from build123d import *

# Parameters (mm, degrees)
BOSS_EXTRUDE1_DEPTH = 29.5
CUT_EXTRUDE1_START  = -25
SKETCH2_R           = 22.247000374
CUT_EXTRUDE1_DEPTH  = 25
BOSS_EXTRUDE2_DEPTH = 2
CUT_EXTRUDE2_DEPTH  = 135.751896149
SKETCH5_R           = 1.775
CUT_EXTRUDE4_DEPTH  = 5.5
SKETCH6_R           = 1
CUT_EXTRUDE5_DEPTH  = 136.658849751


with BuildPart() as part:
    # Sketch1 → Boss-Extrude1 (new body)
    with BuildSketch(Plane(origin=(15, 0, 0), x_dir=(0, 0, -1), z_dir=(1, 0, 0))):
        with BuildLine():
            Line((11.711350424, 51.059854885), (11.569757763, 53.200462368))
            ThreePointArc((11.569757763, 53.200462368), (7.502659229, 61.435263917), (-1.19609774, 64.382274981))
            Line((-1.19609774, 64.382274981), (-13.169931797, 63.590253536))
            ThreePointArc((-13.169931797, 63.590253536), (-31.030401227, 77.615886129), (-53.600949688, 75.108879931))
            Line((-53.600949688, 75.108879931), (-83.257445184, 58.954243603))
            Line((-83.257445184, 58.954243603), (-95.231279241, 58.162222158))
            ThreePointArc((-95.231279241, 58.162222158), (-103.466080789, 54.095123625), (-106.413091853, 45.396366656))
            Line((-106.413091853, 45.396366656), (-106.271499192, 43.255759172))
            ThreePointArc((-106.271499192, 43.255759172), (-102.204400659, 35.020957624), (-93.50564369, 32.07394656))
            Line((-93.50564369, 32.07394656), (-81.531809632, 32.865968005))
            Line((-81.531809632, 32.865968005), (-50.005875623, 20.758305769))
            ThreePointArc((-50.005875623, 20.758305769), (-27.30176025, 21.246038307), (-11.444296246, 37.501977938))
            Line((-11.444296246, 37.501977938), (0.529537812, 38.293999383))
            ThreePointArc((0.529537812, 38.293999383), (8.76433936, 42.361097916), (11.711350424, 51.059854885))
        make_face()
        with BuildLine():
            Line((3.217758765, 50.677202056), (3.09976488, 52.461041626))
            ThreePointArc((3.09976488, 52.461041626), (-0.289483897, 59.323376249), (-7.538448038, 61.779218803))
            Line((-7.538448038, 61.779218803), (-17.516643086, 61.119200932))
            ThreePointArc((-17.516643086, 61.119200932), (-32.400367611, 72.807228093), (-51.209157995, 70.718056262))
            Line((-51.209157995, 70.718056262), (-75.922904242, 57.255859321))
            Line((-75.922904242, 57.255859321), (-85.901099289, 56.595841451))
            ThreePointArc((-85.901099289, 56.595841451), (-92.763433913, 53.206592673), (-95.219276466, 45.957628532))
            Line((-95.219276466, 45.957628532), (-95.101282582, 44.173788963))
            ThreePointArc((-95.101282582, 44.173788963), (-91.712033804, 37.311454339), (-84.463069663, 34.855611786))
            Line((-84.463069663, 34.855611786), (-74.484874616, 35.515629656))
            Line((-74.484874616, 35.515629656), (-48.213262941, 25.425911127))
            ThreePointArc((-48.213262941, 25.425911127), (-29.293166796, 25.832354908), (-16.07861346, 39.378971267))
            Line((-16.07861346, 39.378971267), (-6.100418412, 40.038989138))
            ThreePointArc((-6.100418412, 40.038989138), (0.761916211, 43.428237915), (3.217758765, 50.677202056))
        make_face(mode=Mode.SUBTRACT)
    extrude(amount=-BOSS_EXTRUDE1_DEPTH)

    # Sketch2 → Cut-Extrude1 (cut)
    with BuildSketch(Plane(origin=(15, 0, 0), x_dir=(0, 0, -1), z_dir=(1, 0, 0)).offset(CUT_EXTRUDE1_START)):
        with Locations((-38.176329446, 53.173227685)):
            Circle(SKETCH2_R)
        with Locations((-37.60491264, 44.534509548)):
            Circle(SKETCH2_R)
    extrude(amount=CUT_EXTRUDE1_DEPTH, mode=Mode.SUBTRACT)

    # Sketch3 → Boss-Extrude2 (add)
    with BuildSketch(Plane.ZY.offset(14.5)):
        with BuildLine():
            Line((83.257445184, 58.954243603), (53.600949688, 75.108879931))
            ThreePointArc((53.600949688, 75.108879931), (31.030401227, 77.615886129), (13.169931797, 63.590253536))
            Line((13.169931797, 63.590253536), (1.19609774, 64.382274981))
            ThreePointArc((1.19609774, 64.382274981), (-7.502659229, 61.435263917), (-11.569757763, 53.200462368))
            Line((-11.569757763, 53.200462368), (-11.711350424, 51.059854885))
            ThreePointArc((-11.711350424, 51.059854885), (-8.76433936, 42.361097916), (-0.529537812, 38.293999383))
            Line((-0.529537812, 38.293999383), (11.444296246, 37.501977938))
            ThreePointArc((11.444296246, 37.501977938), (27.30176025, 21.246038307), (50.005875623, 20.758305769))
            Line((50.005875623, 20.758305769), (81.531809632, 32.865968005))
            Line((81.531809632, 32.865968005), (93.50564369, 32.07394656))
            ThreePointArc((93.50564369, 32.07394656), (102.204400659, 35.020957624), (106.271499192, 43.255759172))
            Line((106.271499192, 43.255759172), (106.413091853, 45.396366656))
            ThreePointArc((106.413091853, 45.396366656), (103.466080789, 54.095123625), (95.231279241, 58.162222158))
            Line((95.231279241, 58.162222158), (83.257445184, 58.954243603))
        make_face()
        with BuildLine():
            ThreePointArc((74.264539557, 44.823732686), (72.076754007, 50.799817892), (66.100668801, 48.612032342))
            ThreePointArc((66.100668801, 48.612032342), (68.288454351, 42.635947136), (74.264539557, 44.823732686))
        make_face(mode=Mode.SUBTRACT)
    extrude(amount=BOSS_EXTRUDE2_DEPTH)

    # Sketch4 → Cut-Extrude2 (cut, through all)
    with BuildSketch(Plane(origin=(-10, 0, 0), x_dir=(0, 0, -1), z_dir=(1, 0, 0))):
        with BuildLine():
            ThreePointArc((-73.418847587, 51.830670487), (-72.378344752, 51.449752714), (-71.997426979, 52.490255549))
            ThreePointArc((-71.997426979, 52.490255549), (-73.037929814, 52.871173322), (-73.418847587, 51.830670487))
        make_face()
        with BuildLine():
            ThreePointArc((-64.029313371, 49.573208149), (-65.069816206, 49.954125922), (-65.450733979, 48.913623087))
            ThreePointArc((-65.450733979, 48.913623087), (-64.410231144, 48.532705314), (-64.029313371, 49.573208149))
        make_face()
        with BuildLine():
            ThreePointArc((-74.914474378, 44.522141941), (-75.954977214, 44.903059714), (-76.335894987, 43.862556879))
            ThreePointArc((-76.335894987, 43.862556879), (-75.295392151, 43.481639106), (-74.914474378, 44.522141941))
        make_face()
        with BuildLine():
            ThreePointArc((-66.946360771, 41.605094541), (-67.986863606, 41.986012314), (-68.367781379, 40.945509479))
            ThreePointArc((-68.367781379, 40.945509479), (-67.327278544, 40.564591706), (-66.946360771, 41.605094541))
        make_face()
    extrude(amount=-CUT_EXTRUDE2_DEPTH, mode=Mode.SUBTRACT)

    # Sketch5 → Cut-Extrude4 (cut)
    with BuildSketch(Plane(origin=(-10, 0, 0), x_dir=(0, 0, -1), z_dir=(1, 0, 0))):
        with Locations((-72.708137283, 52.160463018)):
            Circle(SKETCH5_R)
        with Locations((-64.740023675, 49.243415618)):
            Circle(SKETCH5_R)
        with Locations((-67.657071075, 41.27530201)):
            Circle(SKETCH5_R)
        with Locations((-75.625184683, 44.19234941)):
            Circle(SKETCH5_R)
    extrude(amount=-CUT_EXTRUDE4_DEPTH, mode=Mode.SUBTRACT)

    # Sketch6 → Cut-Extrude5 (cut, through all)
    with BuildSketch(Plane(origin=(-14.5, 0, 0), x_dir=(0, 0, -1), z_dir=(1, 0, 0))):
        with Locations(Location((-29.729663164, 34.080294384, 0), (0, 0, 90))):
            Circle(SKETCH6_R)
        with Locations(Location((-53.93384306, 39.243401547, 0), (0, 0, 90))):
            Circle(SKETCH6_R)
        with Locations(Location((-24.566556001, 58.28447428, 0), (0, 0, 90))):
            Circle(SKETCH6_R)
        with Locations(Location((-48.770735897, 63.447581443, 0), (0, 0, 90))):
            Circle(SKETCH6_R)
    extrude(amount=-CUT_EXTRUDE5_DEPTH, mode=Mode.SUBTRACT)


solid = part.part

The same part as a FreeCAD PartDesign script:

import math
import FreeCAD as App
import Part
import Sketcher
from FreeCAD import Vector
Q = App.Units.Quantity

doc = App.newDocument("Part")
params = doc.addObject("Spreadsheet::Sheet", "Params")
for row, (alias, value) in enumerate([
    ("sketch1_radius", "12 mm"),
    ("sketch1_radius2", "30 mm"),
    ("sketch1_radius3", "10 mm"),
    ("sketch1_radius4", "25 mm"),
    ("sketch1_length", "12 mm"),
    ("pad1_length", "29.5 mm"),
    ("pocket1_length", "25 mm"),
    ("sketch3_diameter", "9 mm"),
    ("sketch3_radius", "30 mm"),
    ("sketch3_radius2", "12 mm"),
    ("sketch3_length", "12 mm"),
    ("pad2_length", "2 mm"),
    ("sketch5_diameter", "3.55 mm"),
    ("pocket3_length", "5.5 mm"),
    ("sketch6_diameter", "2 mm"),
], start=1):
    params.set(f"A{row}", alias)
    params.set(f"B{row}", "=" + value)
    params.setAlias(f"B{row}", alias)

body = doc.addObject("PartDesign::Body", "Body")

# Sketch on YZ plane
sketch1 = body.newObject("Sketcher::SketchObject", "Sketch")
sketch1.AttachmentSupport = (doc.getObject("YZ_Plane"), [""])
sketch1.MapMode = "FlatFace"
sketch1.AttachmentOffset = App.Placement(Vector(0, 0, 15), App.Rotation())
sketch1.addGeometry([
    Part.LineSegment(Vector(51.059855, -11.71135, 0), Vector(53.200462, -11.569758, 0)),  # 0
    Part.ArcOfCircle(Part.Circle(Vector(52.408441, 0.404076, 0), Vector(0, 0, 1), 12), math.radians(-86.215625), math.radians(3.784375)),  # 1
    Part.LineSegment(Vector(64.382275, 1.196098, 0), Vector(63.590254, 13.169932, 0)),  # 2
    Part.ArcOfCircle(Part.Circle(Vector(48.763938, 39.2502, 0), Vector(0, 0, 1), 30), math.radians(-60.382295), math.radians(28.578237)),  # 3
    Part.LineSegment(Vector(75.10888, 53.60095, 0), Vector(58.954244, 83.257445, 0)),  # 4
    Part.LineSegment(Vector(58.954244, 83.257445, 0), Vector(58.162222, 95.231279, 0)),  # 5
    Part.ArcOfCircle(Part.Circle(Vector(46.188388, 94.439258, 0), Vector(0, 0, 1), 12), math.radians(3.784375), math.radians(93.784375)),  # 6
    Part.LineSegment(Vector(45.396367, 106.413092, 0), Vector(43.255759, 106.271499, 0)),  # 7
    Part.ArcOfCircle(Part.Circle(Vector(44.047781, 94.297665, 0), Vector(0, 0, 1), 12), math.radians(93.784375), math.radians(183.784375)),  # 8
    Part.LineSegment(Vector(32.073947, 93.505644, 0), Vector(32.865968, 81.53181, 0)),  # 9
    Part.LineSegment(Vector(32.865968, 81.53181, 0), Vector(20.758306, 50.005876, 0)),  # 10
    Part.ArcOfCircle(Part.Circle(Vector(48.763938, 39.2502, 0), Vector(0, 0, 1), 30), math.radians(158.990512), math.radians(247.951045)),  # 11
    Part.LineSegment(Vector(37.501978, 11.444296, 0), Vector(38.293999, -0.529538, 0)),  # 12
    Part.ArcOfCircle(Part.Circle(Vector(50.267833, 0.262484, 0), Vector(0, 0, 1), 12), math.radians(-176.215625), math.radians(-86.215625)),  # 13
    Part.LineSegment(Vector(52.461042, -3.099765, 0), Vector(50.677202, -3.217759, 0)),  # 14
    Part.ArcOfCircle(Part.Circle(Vector(50.017184, 6.760436, 0), Vector(0, 0, 1), 10), math.radians(-176.215625), math.radians(-86.215625)),  # 15
    Part.LineSegment(Vector(40.038989, 6.100418, 0), Vector(39.378971, 16.078613, 0)),  # 16
    Part.ArcOfCircle(Part.Circle(Vector(48.763938, 39.2502, 0), Vector(0, 0, 1), 25), math.radians(158.990512), math.radians(247.951045)),  # 17
    Part.LineSegment(Vector(25.425911, 48.213263, 0), Vector(35.51563, 74.484875, 0)),  # 18
    Part.LineSegment(Vector(35.51563, 74.484875, 0), Vector(34.855612, 84.46307, 0)),  # 19
    Part.ArcOfCircle(Part.Circle(Vector(44.833807, 85.123088, 0), Vector(0, 0, 1), 10), math.radians(93.784375), math.radians(183.784375)),  # 20
    Part.LineSegment(Vector(44.173789, 95.101283, 0), Vector(45.957629, 95.219276, 0)),  # 21
    Part.ArcOfCircle(Part.Circle(Vector(46.617646, 85.241081, 0), Vector(0, 0, 1), 10), math.radians(3.784375), math.radians(93.784375)),  # 22
    Part.LineSegment(Vector(56.595841, 85.901099, 0), Vector(57.255859, 75.922904, 0)),  # 23
    Part.LineSegment(Vector(57.255859, 75.922904, 0), Vector(70.718056, 51.209158, 0)),  # 24
    Part.ArcOfCircle(Part.Circle(Vector(48.763938, 39.2502, 0), Vector(0, 0, 1), 25), math.radians(-60.382295), math.radians(28.578237)),  # 25
    Part.LineSegment(Vector(61.119201, 17.516643, 0), Vector(61.779219, 7.538448, 0)),  # 26
    Part.ArcOfCircle(Part.Circle(Vector(51.801024, 6.87843, 0), Vector(0, 0, 1), 10), math.radians(-86.215625), math.radians(3.784375)),  # 27
], False)
sketch1.addConstraint([
    Sketcher.Constraint("Tangent", 0, 2, 1, 1),
    Sketcher.Constraint("Tangent", 1, 2, 2, 1),
    Sketcher.Constraint("Coincident", 2, 2, 3, 1),
    Sketcher.Constraint("Tangent", 3, 2, 4, 1),
    Sketcher.Constraint("Coincident", 4, 2, 5, 1),
    Sketcher.Constraint("Tangent", 5, 2, 6, 1),
    Sketcher.Constraint("Tangent", 6, 2, 7, 1),
    Sketcher.Constraint("Tangent", 7, 2, 8, 1),
    Sketcher.Constraint("Tangent", 8, 2, 9, 1),
    Sketcher.Constraint("Coincident", 9, 2, 10, 1),
    Sketcher.Constraint("Tangent", 10, 2, 11, 1),
    Sketcher.Constraint("Coincident", 11, 2, 12, 1),
    Sketcher.Constraint("Tangent", 12, 2, 13, 1),
    Sketcher.Constraint("Tangent", 13, 2, 0, 1),
    Sketcher.Constraint("Tangent", 14, 2, 15, 2),
    Sketcher.Constraint("Tangent", 15, 1, 16, 1),
    Sketcher.Constraint("Coincident", 16, 2, 17, 2),
    Sketcher.Constraint("Tangent", 17, 1, 18, 1),
    Sketcher.Constraint("Coincident", 18, 2, 19, 1),
    Sketcher.Constraint("Tangent", 19, 2, 20, 2),
    Sketcher.Constraint("Tangent", 20, 1, 21, 1),
    Sketcher.Constraint("Tangent", 21, 2, 22, 2),
    Sketcher.Constraint("Tangent", 22, 1, 23, 1),
    Sketcher.Constraint("Coincident", 23, 2, 24, 1),
    Sketcher.Constraint("Tangent", 24, 2, 25, 2),
    Sketcher.Constraint("Coincident", 25, 1, 26, 1),
    Sketcher.Constraint("Tangent", 26, 2, 27, 2),
    Sketcher.Constraint("Tangent", 27, 1, 14, 1),
    Sketcher.Constraint("Coincident", 11, 3, 3, 3),
    Sketcher.Constraint("Coincident", 17, 3, 3, 3),
    Sketcher.Constraint("Coincident", 25, 3, 3, 3),
    Sketcher.Constraint("Equal", 1, 6),
    Sketcher.Constraint("Equal", 6, 8),
    Sketcher.Constraint("Equal", 3, 11),
    Sketcher.Constraint("Equal", 8, 13),
    Sketcher.Constraint("Equal", 15, 20),
    Sketcher.Constraint("Equal", 20, 22),
    Sketcher.Constraint("Equal", 17, 25),
    Sketcher.Constraint("Equal", 22, 27),
    Sketcher.Constraint("Perpendicular", 0, 2),
    Sketcher.Constraint("Parallel", 2, 5),
    Sketcher.Constraint("Perpendicular", 5, 7),
    Sketcher.Constraint("Perpendicular", 7, 9),
    Sketcher.Constraint("Parallel", 9, 12),
    Sketcher.Constraint("Perpendicular", 12, 14),
    Sketcher.Constraint("Perpendicular", 14, 16),
    Sketcher.Constraint("Parallel", 10, 18),
    Sketcher.Constraint("Parallel", 16, 19),
    Sketcher.Constraint("Perpendicular", 19, 21),
    Sketcher.Constraint("Perpendicular", 21, 23),
    Sketcher.Constraint("Parallel", 4, 24),
    Sketcher.Constraint("Parallel", 23, 26),
    Sketcher.Constraint("Equal", 2, 5),
    Sketcher.Constraint("Equal", 0, 7),
    Sketcher.Constraint("Equal", 5, 9),
    Sketcher.Constraint("Equal", 4, 10),
    Sketcher.Constraint("Equal", 9, 12),
    Sketcher.Constraint("Equal", 16, 19),
    Sketcher.Constraint("Equal", 14, 21),
    Sketcher.Constraint("Equal", 19, 23),
    Sketcher.Constraint("Equal", 23, 26),
    Sketcher.Constraint("Radius", 1, Q("12 mm")),
    Sketcher.Constraint("Radius", 3, Q("30 mm")),
    Sketcher.Constraint("Radius", 15, Q("10 mm")),
    Sketcher.Constraint("Radius", 17, Q("25 mm")),
    Sketcher.Constraint("Distance", 2, Q("12 mm")),
    Sketcher.Constraint("Distance", 16, Q("10 mm")),
    Sketcher.Constraint("DistanceX", -1, 1, 12, 2, Q("38.293999 mm")),
    Sketcher.Constraint("DistanceY", 0, 2, 14, 2, Q("8.351999 mm")),
    Sketcher.Constraint("DistanceY", -1, 1, 3, 3, Q("39.2502 mm")),
    Sketcher.Constraint("DistanceY", -1, 1, 7, 2, Q("106.271499 mm")),
    Sketcher.Constraint("DistanceY", -1, 1, 22, 1, Q("85.901099 mm")),
    Sketcher.Constraint("DistanceY", 27, 3, 2, 2, Q("6.291502 mm")),
])
sketch1.setExpression("Constraints[61]", "Params.sketch1_radius")
sketch1.setExpression("Constraints[62]", "Params.sketch1_radius2")
sketch1.setExpression("Constraints[63]", "Params.sketch1_radius3")
sketch1.setExpression("Constraints[64]", "Params.sketch1_radius4")
sketch1.setExpression("Constraints[65]", "Params.sketch1_length")
pad1 = body.newObject("PartDesign::Pad", "Pad")
pad1.Profile = sketch1
pad1.setExpression("Length", "Params.pad1_length")
pad1.Reversed = True

# Sketch on YZ plane
sketch2 = body.newObject("Sketcher::SketchObject", "Sketch001")
sketch2.AttachmentSupport = (doc.getObject("YZ_Plane"), [""])
sketch2.MapMode = "FlatFace"
sketch2.AttachmentOffset = App.Placement(Vector(0, 0, -10), App.Rotation())
sketch2.addGeometry([
    Part.ArcOfCircle(Part.Circle(Vector(53.173228, 38.176329, 0), Vector(0, 0, 1), 22.247), math.radians(-97.435753), math.radians(105.004503)),
    Part.ArcOfCircle(Part.Circle(Vector(44.53451, 37.604913, 0), Vector(0, 0, 1), 22.247), math.radians(82.564247), math.radians(285.004503)),
], False)
sketch2.addConstraint([
    Sketcher.Constraint("Coincident", 0, 1, 1, 2),
    Sketcher.Constraint("Coincident", 1, 1, 0, 2),
    Sketcher.Constraint("Equal", 0, 1),
    Sketcher.Constraint("Radius", 0, Q("22.247 mm")),
    Sketcher.Constraint("DistanceY", 0, 1, 1, 3, Q("21.4885 mm")),
    Sketcher.Constraint("DistanceY", -1, 1, 0, 3, Q("38.176329 mm")),
    Sketcher.Constraint("DistanceX", -1, 1, 1, 3, Q("44.53451 mm")),
    Sketcher.Constraint("DistanceX", -1, 1, 1, 1, Q("47.413591 mm")),
])
pocket1 = body.newObject("PartDesign::Pocket", "Pocket")
pocket1.Profile = sketch2
pocket1.setExpression("Length", "Params.pocket1_length")
pocket1.Reversed = True

# Sketch on YZ plane
sketch3 = body.newObject("Sketcher::SketchObject", "Sketch002")
sketch3.AttachmentSupport = (doc.getObject("YZ_Plane"), [""])
sketch3.MapMode = "FlatFace"
sketch3.AttachmentOffset = App.Placement(Vector(0, 0, -14.5), App.Rotation())
sketch3.addGeometry([
    Part.LineSegment(Vector(58.954244, 83.257445, 0), Vector(75.10888, 53.60095, 0)),  # 0
    Part.ArcOfCircle(Part.Circle(Vector(48.763938, 39.2502, 0), Vector(0, 0, 1), 30), math.radians(-60.382295), math.radians(28.578237)),  # 1
    Part.LineSegment(Vector(63.590254, 13.169932, 0), Vector(64.382275, 1.196098, 0)),  # 2
    Part.ArcOfCircle(Part.Circle(Vector(52.408441, 0.404076, 0), Vector(0, 0, 1), 12), math.radians(-86.215625), math.radians(3.784375)),  # 3
    Part.LineSegment(Vector(53.200462, -11.569758, 0), Vector(51.059855, -11.71135, 0)),  # 4
    Part.ArcOfCircle(Part.Circle(Vector(50.267833, 0.262484, 0), Vector(0, 0, 1), 12), math.radians(-176.215625), math.radians(-86.215625)),  # 5
    Part.LineSegment(Vector(38.293999, -0.529538, 0), Vector(37.501978, 11.444296, 0)),  # 6
    Part.ArcOfCircle(Part.Circle(Vector(48.763938, 39.2502, 0), Vector(0, 0, 1), 30), math.radians(158.990512), math.radians(247.951045)),  # 7
    Part.LineSegment(Vector(20.758306, 50.005876, 0), Vector(32.865968, 81.53181, 0)),  # 8
    Part.LineSegment(Vector(32.865968, 81.53181, 0), Vector(32.073947, 93.505644, 0)),  # 9
    Part.ArcOfCircle(Part.Circle(Vector(44.047781, 94.297665, 0), Vector(0, 0, 1), 12), math.radians(93.784375), math.radians(183.784375)),  # 10
    Part.LineSegment(Vector(43.255759, 106.271499, 0), Vector(45.396367, 106.413092, 0)),  # 11
    Part.ArcOfCircle(Part.Circle(Vector(46.188388, 94.439258, 0), Vector(0, 0, 1), 12), math.radians(3.784375), math.radians(93.784375)),  # 12
    Part.LineSegment(Vector(58.162222, 95.231279, 0), Vector(58.954244, 83.257445, 0)),  # 13
    Part.Circle(Vector(46.717883, 70.182604, 0), Vector(0, 0, 1), 4.5),  # 14
], False)
sketch3.addConstraint([
    Sketcher.Constraint("Tangent", 0, 2, 1, 2),
    Sketcher.Constraint("Coincident", 1, 1, 2, 1),
    Sketcher.Constraint("Tangent", 2, 2, 3, 2),
    Sketcher.Constraint("Tangent", 3, 1, 4, 1),
    Sketcher.Constraint("Tangent", 4, 2, 5, 2),
    Sketcher.Constraint("Tangent", 5, 1, 6, 1),
    Sketcher.Constraint("Coincident", 6, 2, 7, 2),
    Sketcher.Constraint("Tangent", 7, 1, 8, 1),
    Sketcher.Constraint("Coincident", 8, 2, 9, 1),
    Sketcher.Constraint("Tangent", 9, 2, 10, 2),
    Sketcher.Constraint("Tangent", 10, 1, 11, 1),
    Sketcher.Constraint("Tangent", 11, 2, 12, 2),
    Sketcher.Constraint("Tangent", 12, 1, 13, 1),
    Sketcher.Constraint("Coincident", 13, 2, 0, 1),
    Sketcher.Constraint("Coincident", 7, 3, 1, 3),
    Sketcher.Constraint("Equal", 3, 5),
    Sketcher.Constraint("Equal", 1, 7),
    Sketcher.Constraint("Equal", 5, 10),
    Sketcher.Constraint("Equal", 10, 12),
    Sketcher.Constraint("Perpendicular", 2, 4),
    Sketcher.Constraint("Perpendicular", 4, 6),
    Sketcher.Constraint("Parallel", 6, 9),
    Sketcher.Constraint("Perpendicular", 9, 11),
    Sketcher.Constraint("Perpendicular", 11, 13),
    Sketcher.Constraint("Equal", 2, 6),
    Sketcher.Constraint("Equal", 0, 8),
    Sketcher.Constraint("Equal", 6, 9),
    Sketcher.Constraint("Equal", 4, 11),
    Sketcher.Constraint("Equal", 9, 13),
    Sketcher.Constraint("Diameter", 14, Q("9 mm")),
    Sketcher.Constraint("Radius", 1, Q("30 mm")),
    Sketcher.Constraint("Radius", 3, Q("12 mm")),
    Sketcher.Constraint("Distance", 2, Q("12 mm")),
    Sketcher.Constraint("DistanceX", -1, 1, 5, 1, Q("38.293999 mm")),
    Sketcher.Constraint("DistanceY", -1, 1, 1, 3, Q("39.2502 mm")),
    Sketcher.Constraint("DistanceY", -1, 1, 10, 1, Q("106.271499 mm")),
    Sketcher.Constraint("DistanceX", 10, 3, 14, 3, Q("2.670102 mm")),
    Sketcher.Constraint("DistanceX", 10, 3, 0, 2, Q("31.061099 mm")),
    Sketcher.Constraint("DistanceX", 4, 2, 1, 1, Q("12.530399 mm")),
    Sketcher.Constraint("DistanceY", 14, 3, 10, 3, Q("24.115061 mm")),
])
sketch3.setExpression("Constraints[29]", "Params.sketch3_diameter")
sketch3.setExpression("Constraints[30]", "Params.sketch3_radius")
sketch3.setExpression("Constraints[31]", "Params.sketch3_radius2")
sketch3.setExpression("Constraints[32]", "Params.sketch3_length")
pad2 = body.newObject("PartDesign::Pad", "Pad001")
pad2.Profile = sketch3
pad2.setExpression("Length", "Params.pad2_length")
pad2.Reversed = True

# Sketch on YZ plane
sketch4 = body.newObject("Sketcher::SketchObject", "Sketch003")
sketch4.AttachmentSupport = (doc.getObject("YZ_Plane"), [""])
sketch4.MapMode = "FlatFace"
sketch4.AttachmentOffset = App.Placement(Vector(0, 0, -10), App.Rotation())
sketch4.addGeometry([
    Part.Circle(Vector(52.160463, 72.708137, 0), Vector(0, 0, 1), 0.7835),  # 0
    Part.Circle(Vector(49.243416, 64.740024, 0), Vector(0, 0, 1), 0.7835),  # 1
    Part.ArcOfCircle(Part.Circle(Vector(44.192349, 75.625185, 0), Vector(0, 0, 1), 0.7835), math.radians(-65.107177), math.radians(114.892822)),  # 2
    Part.ArcOfCircle(Part.Circle(Vector(44.192349, 75.625185, 0), Vector(0, 0, 1), 0.7835), math.radians(114.892823), math.radians(294.892822)),  # 3
    Part.Circle(Vector(41.275302, 67.657071, 0), Vector(0, 0, 1), 0.7835),  # 4
], False)
sketch4.addConstraint([
    Sketcher.Constraint("Tangent", 2, 1, 3, 2),
    Sketcher.Constraint("Coincident", 3, 1, 2, 2),
    Sketcher.Constraint("Equal", 0, 1),
    Sketcher.Constraint("Equal", 1, 2),
    Sketcher.Constraint("Equal", 3, 4),
    Sketcher.Constraint("Diameter", 0, Q("1.567 mm")),
    Sketcher.Constraint("DistanceX", -1, 1, 2, 3, Q("44.192349 mm")),
    Sketcher.Constraint("DistanceY", -1, 1, 4, 3, Q("67.657071 mm")),
    Sketcher.Constraint("DistanceX", -1, 1, 2, 1, Q("44.522142 mm")),
    Sketcher.Constraint("DistanceY", 1, 3, 2, 3, Q("10.885161 mm")),
    Sketcher.Constraint("DistanceX", 4, 3, 0, 3, Q("10.885161 mm")),
    Sketcher.Constraint("DistanceX", 4, 3, 2, 1, Q("3.24684 mm")),
    Sketcher.Constraint("DistanceY", 3, 3, 3, 1, Q("0.71071 mm")),
    Sketcher.Constraint("DistanceY", -1, 1, 0, 3, Q("72.708137 mm")),
    Sketcher.Constraint("DistanceX", -1, 1, 1, 3, Q("49.243416 mm")),
    Sketcher.Constraint("DistanceY", -1, 1, 1, 3, Q("64.740024 mm")),
])
pocket2 = body.newObject("PartDesign::Pocket", "Pocket001")
pocket2.Profile = sketch4
pocket2.Type = "ThroughAll"

# Sketch on YZ plane
sketch5 = body.newObject("Sketcher::SketchObject", "Sketch004")
sketch5.AttachmentSupport = (doc.getObject("YZ_Plane"), [""])
sketch5.MapMode = "FlatFace"
sketch5.AttachmentOffset = App.Placement(Vector(0, 0, -10), App.Rotation())
sketch5.addGeometry([
    Part.Circle(Vector(52.160463, 72.708137, 0), Vector(0, 0, 1), 1.775),
    Part.Circle(Vector(49.243416, 64.740024, 0), Vector(0, 0, 1), 1.775),
    Part.Circle(Vector(41.275302, 67.657071, 0), Vector(0, 0, 1), 1.775),
    Part.Circle(Vector(44.192349, 75.625185, 0), Vector(0, 0, 1), 1.775),
], False)
sketch5.addConstraint([
    Sketcher.Constraint("Equal", 0, 1),
    Sketcher.Constraint("Equal", 1, 2),
    Sketcher.Constraint("Equal", 2, 3),
    Sketcher.Constraint("Diameter", 0, Q("3.55 mm")),
    Sketcher.Constraint("DistanceY", -1, 1, 2, 3, Q("67.657071 mm")),
    Sketcher.Constraint("DistanceX", -1, 1, 3, 3, Q("44.192349 mm")),
    Sketcher.Constraint("DistanceX", 2, 3, 0, 3, Q("10.885161 mm")),
    Sketcher.Constraint("DistanceY", 1, 3, 3, 3, Q("10.885161 mm")),
    Sketcher.Constraint("DistanceX", -1, 1, 0, 3, Q("52.160463 mm")),
    Sketcher.Constraint("DistanceY", -1, 1, 0, 3, Q("72.708137 mm")),
    Sketcher.Constraint("DistanceX", -1, 1, 1, 3, Q("49.243416 mm")),
    Sketcher.Constraint("DistanceY", -1, 1, 1, 3, Q("64.740024 mm")),
])
sketch5.setExpression("Constraints[3]", "Params.sketch5_diameter")
pocket3 = body.newObject("PartDesign::Pocket", "Pocket002")
pocket3.Profile = sketch5
pocket3.setExpression("Length", "Params.pocket3_length")

# Sketch on YZ plane
sketch6 = body.newObject("Sketcher::SketchObject", "Sketch005")
sketch6.AttachmentSupport = (doc.getObject("YZ_Plane"), [""])
sketch6.MapMode = "FlatFace"
sketch6.AttachmentOffset = App.Placement(Vector(0, 0, -14.5), App.Rotation())
sketch6.addGeometry([
    Part.Circle(Vector(34.080294, 29.729663, 0), Vector(0, 0, 1), 1),
    Part.Circle(Vector(39.243402, 53.933843, 0), Vector(0, 0, 1), 1),
    Part.Circle(Vector(58.284474, 24.566556, 0), Vector(0, 0, 1), 1),
    Part.Circle(Vector(63.447581, 48.770736, 0), Vector(0, 0, 1), 1),
], False)
sketch6.addConstraint([
    Sketcher.Constraint("Equal", 0, 1),
    Sketcher.Constraint("Equal", 1, 2),
    Sketcher.Constraint("Equal", 2, 3),
    Sketcher.Constraint("Diameter", 0, Q("2 mm")),
    Sketcher.Constraint("DistanceX", -1, 1, 1, 3, Q("39.243402 mm")),
    Sketcher.Constraint("DistanceX", -1, 1, 3, 3, Q("63.447581 mm")),
    Sketcher.Constraint("DistanceY", 0, 3, 1, 3, Q("24.20418 mm")),
    Sketcher.Constraint("DistanceX", 0, 3, 2, 3, Q("24.20418 mm")),
    Sketcher.Constraint("DistanceY", 2, 3, 3, 3, Q("24.20418 mm")),
    Sketcher.Constraint("DistanceX", -1, 1, 0, 3, Q("34.080294 mm")),
    Sketcher.Constraint("DistanceY", -1, 1, 0, 3, Q("29.729663 mm")),
    Sketcher.Constraint("DistanceY", -1, 1, 2, 3, Q("24.566556 mm")),
])
sketch6.setExpression("Constraints[3]", "Params.sketch6_diameter")
pocket4 = body.newObject("PartDesign::Pocket", "Pocket003")
pocket4.Profile = sketch6
pocket4.Type = "ThroughAll"

doc.recompute()
